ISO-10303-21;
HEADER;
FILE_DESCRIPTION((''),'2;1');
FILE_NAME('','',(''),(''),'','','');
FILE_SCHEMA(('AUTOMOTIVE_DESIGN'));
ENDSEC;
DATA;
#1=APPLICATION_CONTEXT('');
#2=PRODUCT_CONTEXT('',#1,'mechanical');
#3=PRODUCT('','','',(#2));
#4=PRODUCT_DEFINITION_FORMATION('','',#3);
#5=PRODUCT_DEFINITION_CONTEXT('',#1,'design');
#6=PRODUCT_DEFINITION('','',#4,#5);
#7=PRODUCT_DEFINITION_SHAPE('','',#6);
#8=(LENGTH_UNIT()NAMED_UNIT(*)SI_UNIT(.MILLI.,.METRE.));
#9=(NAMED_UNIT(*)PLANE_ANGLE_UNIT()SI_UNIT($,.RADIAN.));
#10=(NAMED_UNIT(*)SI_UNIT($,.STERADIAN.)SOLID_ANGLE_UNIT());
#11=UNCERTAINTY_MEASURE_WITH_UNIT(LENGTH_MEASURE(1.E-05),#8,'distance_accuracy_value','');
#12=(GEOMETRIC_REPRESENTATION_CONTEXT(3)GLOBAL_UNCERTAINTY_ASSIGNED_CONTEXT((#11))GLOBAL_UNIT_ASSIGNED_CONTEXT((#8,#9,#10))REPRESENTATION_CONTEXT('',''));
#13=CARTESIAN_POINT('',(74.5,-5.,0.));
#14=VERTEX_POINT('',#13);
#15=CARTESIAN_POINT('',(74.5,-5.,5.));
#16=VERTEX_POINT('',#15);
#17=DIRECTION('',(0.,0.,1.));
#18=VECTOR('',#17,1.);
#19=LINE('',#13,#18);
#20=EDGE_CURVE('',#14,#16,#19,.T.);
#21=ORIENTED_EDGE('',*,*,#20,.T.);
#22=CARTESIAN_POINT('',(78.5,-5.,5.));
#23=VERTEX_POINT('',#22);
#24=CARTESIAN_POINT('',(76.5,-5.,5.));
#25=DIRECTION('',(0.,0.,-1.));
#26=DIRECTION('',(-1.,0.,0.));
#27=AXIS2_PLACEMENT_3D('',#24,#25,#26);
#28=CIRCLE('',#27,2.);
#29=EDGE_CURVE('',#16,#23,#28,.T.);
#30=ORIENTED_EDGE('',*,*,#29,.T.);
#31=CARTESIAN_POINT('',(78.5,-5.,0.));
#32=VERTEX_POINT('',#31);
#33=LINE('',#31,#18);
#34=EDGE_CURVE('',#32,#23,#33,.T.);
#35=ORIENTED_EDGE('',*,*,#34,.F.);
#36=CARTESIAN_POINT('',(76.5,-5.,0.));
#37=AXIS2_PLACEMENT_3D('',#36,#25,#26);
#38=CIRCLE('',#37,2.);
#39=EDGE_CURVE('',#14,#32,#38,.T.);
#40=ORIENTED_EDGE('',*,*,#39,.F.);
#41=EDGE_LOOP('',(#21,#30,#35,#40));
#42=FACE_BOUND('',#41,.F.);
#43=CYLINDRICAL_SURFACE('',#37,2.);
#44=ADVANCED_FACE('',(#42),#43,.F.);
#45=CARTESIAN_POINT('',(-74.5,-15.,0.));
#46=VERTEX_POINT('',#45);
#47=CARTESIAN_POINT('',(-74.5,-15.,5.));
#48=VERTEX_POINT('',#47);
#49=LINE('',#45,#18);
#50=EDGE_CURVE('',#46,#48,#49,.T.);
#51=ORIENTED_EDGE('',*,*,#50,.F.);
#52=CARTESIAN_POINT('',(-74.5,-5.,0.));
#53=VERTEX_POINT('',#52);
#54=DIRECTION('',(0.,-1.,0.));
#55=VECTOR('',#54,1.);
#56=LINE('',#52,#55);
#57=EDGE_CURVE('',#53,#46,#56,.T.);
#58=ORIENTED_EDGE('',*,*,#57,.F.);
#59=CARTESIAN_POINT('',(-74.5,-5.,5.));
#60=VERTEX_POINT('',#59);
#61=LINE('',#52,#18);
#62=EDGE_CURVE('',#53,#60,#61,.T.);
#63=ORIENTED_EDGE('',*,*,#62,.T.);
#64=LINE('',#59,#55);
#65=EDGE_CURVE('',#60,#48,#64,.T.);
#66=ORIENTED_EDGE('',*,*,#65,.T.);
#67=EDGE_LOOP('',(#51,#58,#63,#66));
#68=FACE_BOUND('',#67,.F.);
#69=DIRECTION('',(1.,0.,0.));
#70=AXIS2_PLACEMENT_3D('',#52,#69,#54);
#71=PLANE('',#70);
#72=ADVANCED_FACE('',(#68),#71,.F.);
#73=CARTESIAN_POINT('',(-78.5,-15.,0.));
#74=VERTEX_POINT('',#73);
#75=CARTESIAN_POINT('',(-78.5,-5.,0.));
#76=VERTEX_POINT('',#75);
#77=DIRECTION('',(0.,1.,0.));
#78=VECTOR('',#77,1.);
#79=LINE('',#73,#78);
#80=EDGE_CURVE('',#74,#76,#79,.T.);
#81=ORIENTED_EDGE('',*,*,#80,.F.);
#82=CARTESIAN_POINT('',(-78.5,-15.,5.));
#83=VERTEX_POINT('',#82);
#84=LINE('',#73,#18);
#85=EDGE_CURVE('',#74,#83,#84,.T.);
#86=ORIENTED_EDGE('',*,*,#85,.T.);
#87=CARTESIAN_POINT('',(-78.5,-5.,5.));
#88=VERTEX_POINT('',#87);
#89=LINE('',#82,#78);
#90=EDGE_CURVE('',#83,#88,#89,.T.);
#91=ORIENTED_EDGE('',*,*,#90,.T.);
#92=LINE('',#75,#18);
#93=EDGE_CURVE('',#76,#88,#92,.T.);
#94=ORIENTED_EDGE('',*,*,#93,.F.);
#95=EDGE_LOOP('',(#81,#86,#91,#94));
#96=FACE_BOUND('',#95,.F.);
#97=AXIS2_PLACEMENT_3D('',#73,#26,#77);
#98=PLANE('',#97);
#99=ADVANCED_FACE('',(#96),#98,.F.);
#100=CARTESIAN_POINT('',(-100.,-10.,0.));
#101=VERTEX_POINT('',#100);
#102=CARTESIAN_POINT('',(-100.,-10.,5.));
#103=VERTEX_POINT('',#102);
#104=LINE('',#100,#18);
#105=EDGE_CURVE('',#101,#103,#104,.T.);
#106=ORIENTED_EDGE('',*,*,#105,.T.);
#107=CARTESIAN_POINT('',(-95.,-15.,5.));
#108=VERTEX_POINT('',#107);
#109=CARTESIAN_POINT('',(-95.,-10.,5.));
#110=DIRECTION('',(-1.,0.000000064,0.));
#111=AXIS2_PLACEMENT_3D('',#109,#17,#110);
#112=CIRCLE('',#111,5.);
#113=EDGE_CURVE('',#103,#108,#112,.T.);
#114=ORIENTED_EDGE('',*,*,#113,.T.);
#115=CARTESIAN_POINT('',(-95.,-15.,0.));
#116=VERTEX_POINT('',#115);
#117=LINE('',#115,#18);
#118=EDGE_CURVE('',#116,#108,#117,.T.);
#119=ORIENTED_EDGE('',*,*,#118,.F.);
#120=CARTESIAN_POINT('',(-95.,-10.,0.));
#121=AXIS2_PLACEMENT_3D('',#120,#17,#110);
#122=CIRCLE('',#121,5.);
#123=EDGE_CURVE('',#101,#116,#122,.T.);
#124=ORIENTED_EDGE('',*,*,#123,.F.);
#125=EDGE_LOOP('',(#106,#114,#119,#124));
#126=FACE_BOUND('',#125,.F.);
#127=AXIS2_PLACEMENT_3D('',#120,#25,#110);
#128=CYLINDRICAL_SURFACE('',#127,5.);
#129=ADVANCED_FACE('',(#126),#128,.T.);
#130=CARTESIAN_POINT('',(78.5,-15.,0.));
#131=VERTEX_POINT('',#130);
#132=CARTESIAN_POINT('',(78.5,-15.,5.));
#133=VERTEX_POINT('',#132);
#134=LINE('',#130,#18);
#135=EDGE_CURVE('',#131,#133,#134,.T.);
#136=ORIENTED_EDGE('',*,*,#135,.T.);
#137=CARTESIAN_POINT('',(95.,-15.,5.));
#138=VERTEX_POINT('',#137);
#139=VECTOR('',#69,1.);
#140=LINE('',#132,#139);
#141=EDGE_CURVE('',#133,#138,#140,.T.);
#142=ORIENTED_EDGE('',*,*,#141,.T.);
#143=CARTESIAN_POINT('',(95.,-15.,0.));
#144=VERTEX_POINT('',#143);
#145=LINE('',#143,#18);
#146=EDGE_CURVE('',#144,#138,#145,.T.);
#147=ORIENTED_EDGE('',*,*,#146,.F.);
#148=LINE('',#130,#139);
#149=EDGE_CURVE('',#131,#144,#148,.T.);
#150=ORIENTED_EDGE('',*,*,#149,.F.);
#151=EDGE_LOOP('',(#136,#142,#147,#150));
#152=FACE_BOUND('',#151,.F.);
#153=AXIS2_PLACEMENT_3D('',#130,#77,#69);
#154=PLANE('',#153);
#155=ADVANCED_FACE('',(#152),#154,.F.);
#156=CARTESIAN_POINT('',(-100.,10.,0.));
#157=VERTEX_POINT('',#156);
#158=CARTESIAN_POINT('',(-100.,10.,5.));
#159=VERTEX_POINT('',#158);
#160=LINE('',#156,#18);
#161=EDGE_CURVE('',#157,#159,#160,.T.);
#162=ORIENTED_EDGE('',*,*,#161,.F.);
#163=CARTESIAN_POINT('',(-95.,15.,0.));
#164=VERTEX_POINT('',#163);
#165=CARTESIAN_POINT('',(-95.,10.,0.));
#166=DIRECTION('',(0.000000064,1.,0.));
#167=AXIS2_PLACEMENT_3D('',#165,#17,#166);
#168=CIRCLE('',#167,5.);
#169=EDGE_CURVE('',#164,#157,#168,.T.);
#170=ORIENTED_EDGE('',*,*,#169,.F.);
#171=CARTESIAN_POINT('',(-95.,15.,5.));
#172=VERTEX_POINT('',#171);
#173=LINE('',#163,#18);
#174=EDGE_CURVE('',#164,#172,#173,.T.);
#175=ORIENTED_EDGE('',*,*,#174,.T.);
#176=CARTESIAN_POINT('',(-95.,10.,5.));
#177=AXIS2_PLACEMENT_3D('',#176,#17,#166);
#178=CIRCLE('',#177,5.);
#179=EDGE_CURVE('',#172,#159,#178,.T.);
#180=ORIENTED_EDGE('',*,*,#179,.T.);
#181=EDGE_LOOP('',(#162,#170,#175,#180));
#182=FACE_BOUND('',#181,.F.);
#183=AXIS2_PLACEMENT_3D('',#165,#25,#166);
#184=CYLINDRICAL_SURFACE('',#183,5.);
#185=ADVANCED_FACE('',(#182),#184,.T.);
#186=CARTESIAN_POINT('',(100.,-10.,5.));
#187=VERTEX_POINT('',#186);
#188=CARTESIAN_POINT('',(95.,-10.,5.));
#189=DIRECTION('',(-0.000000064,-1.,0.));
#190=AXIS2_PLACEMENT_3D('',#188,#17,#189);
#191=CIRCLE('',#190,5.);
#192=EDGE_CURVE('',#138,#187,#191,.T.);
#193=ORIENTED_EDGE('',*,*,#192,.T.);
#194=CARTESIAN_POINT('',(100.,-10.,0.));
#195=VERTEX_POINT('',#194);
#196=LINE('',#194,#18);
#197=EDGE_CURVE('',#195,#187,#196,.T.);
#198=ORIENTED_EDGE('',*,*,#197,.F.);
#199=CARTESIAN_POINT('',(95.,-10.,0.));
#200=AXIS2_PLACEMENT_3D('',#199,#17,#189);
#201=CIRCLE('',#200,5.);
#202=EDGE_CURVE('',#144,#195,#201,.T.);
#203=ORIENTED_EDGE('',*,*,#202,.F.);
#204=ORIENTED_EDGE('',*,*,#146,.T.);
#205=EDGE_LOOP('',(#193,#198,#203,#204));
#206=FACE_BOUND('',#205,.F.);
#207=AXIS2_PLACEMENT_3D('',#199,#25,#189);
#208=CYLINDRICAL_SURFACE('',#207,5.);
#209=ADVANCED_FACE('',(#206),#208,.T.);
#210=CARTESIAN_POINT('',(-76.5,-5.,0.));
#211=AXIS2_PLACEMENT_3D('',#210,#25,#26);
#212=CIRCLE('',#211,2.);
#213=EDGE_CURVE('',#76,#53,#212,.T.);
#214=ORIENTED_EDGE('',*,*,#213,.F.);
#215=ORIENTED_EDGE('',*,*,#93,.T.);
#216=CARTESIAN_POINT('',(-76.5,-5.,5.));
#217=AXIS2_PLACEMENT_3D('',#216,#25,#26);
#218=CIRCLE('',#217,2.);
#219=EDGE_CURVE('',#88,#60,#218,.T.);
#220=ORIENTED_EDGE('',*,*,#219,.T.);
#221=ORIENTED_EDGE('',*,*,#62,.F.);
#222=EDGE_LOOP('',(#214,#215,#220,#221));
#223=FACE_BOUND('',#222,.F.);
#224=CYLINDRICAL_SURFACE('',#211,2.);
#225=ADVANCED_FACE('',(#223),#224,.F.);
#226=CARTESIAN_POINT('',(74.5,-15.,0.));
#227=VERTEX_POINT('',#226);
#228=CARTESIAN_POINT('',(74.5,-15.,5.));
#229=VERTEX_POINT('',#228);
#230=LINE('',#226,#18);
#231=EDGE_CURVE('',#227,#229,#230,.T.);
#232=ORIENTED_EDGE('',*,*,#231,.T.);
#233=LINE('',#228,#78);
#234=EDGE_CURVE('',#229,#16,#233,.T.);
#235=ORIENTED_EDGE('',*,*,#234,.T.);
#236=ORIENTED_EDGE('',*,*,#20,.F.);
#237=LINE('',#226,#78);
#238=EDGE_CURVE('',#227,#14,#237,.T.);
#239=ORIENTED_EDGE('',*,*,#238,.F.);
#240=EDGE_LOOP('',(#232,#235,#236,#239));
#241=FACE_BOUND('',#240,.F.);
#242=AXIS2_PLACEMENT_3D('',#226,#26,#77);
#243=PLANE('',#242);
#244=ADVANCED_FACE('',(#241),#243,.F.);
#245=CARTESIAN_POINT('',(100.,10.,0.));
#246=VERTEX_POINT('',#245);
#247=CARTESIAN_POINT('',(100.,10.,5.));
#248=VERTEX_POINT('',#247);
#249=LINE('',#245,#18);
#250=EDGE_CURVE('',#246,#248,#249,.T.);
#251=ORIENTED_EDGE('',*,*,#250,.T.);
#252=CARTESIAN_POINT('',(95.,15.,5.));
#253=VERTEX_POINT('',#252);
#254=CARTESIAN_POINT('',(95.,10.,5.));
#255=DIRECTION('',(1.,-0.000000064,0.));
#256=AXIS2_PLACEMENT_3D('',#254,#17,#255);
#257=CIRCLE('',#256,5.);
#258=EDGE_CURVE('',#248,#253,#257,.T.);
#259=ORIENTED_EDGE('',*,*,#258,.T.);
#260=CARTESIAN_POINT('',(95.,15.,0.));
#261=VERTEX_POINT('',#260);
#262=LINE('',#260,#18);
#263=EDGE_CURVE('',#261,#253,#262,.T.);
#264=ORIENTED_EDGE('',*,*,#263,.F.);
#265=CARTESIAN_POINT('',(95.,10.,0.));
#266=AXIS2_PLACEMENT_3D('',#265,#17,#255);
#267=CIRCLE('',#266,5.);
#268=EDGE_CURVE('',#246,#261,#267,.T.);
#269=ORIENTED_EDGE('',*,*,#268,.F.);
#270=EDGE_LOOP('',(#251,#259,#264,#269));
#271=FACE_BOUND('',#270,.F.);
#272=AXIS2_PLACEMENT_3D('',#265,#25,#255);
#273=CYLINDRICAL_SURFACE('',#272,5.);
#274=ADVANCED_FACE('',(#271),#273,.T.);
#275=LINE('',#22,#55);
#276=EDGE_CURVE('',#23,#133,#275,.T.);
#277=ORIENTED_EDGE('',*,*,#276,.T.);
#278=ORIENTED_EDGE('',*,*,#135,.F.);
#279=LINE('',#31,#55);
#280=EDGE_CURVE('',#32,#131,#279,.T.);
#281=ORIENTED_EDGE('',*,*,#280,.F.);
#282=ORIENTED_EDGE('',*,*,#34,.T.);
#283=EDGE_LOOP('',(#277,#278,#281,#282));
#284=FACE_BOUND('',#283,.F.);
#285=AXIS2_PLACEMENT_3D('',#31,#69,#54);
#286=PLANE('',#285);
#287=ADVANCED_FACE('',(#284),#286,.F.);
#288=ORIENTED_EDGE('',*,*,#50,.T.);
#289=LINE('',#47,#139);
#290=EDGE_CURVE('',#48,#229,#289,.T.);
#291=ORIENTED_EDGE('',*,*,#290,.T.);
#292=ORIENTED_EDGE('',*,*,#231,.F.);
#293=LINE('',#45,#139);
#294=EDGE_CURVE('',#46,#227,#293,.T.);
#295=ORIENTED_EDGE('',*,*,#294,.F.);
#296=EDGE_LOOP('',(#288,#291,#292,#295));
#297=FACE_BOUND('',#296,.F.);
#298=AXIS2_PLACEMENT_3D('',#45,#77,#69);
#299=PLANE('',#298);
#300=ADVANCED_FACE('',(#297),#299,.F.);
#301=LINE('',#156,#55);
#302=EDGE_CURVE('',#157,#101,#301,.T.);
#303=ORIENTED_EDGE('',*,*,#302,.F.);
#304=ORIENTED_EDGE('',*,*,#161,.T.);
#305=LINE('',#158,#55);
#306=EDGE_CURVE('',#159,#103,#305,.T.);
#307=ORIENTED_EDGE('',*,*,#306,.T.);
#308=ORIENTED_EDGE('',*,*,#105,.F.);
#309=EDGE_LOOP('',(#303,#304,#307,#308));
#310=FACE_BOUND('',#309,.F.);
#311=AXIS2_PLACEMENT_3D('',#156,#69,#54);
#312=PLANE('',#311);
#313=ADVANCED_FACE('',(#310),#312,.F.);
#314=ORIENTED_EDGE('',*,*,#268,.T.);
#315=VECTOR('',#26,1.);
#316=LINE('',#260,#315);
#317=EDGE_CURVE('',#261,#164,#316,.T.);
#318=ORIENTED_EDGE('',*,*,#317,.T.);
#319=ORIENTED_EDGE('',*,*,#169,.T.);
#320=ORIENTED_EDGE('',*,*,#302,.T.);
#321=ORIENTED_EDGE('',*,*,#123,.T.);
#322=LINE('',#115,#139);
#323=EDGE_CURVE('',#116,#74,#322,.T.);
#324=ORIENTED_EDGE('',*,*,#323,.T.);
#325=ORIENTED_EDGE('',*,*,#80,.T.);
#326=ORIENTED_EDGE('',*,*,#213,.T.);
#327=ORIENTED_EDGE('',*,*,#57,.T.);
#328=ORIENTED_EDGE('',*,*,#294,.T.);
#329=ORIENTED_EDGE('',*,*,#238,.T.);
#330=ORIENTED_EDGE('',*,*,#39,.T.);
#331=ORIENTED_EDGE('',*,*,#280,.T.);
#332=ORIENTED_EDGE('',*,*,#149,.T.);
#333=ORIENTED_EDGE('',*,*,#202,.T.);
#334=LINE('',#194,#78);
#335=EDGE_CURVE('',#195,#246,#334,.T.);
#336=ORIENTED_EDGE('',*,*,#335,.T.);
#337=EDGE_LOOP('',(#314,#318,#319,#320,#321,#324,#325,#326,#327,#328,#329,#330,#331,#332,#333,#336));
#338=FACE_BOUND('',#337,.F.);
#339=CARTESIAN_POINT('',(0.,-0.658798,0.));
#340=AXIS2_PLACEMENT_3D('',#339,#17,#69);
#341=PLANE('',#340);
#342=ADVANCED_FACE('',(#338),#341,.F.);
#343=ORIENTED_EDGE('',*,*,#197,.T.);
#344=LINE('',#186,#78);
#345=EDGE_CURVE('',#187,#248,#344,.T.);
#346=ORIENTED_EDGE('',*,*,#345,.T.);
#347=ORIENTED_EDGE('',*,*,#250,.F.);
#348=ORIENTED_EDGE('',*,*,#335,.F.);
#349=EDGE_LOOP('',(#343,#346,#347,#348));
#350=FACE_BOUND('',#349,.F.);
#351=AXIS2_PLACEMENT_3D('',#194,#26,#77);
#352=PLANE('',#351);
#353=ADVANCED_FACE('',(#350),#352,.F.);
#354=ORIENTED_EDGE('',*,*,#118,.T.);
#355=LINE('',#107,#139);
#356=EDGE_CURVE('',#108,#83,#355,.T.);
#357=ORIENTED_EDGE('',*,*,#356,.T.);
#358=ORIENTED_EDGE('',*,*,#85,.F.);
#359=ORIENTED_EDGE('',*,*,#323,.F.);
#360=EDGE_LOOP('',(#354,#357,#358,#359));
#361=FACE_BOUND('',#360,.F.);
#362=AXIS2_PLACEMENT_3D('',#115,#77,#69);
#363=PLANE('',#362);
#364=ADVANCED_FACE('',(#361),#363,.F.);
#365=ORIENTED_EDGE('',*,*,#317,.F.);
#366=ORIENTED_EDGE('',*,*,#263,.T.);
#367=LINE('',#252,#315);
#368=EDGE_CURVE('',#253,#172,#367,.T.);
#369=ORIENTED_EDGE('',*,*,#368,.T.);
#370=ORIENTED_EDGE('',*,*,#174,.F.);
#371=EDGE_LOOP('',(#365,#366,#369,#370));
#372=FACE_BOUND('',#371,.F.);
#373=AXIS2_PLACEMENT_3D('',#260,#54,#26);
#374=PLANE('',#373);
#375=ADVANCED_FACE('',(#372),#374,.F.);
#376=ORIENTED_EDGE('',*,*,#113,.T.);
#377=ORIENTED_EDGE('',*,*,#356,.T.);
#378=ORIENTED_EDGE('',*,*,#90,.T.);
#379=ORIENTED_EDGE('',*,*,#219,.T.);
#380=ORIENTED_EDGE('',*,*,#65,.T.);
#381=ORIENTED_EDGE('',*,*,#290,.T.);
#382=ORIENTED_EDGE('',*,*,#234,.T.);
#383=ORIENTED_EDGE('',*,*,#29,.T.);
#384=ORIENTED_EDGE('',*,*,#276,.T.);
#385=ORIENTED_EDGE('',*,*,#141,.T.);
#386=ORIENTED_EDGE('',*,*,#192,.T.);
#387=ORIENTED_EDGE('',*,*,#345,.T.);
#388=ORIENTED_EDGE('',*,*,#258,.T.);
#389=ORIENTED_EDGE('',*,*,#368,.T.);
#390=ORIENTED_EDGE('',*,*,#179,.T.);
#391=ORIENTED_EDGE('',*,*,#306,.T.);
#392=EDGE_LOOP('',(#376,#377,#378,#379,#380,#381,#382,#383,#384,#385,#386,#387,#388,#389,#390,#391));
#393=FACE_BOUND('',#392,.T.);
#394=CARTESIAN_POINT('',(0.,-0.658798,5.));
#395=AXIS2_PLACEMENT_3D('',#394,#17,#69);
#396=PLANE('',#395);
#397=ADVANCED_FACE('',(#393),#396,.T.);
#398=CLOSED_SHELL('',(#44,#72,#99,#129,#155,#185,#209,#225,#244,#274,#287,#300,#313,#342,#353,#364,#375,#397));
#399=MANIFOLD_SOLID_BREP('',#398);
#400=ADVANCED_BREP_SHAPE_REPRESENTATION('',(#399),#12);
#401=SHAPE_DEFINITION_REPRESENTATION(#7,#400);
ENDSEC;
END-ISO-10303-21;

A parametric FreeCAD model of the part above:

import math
import FreeCAD as App
import Part
import Sketcher
from FreeCAD import Vector

doc = App.newDocument("Part")
body = doc.addObject("PartDesign::Body", "Body")

sketch1 = doc.addObject("Sketcher::SketchObject", "Sketch")
body.addObject(sketch1)
sketch1.AttachmentSupport = (doc.XY_Plane, [""])
sketch1.MapMode = "FlatFace"
sketch1.addGeometry(Part.LineSegment(Vector(95, 15, 0), Vector(-95, 15, 0)), False)
sketch1.addGeometry(Part.ArcOfCircle(Part.Circle(Vector(-95, 10, 0), Vector(0, 0, 1), 5), math.radians(90), math.radians(180)), False)
sketch1.addGeometry(Part.LineSegment(Vector(-100, 10, 0), Vector(-100, -10, 0)), False)
sketch1.addGeometry(Part.ArcOfCircle(Part.Circle(Vector(-95, -10, 0), Vector(0, 0, 1), 5), math.radians(180), math.radians(270)), False)
sketch1.addGeometry(Part.LineSegment(Vector(-95, -15, 0), Vector(-78.5, -15, 0)), False)
sketch1.addGeometry(Part.LineSegment(Vector(-78.5, -15, 0), Vector(-78.5, -5, 0)), False)
sketch1.addGeometry(Part.ArcOfCircle(Part.Circle(Vector(-76.5, -5, 0), Vector(0, 0, 1), 2), math.radians(0), math.radians(180)), False)
sketch1.addGeometry(Part.LineSegment(Vector(-74.5, -5, 0), Vector(-74.5, -15, 0)), False)
sketch1.addGeometry(Part.LineSegment(Vector(-74.5, -15, 0), Vector(74.5, -15, 0)), False)
sketch1.addGeometry(Part.LineSegment(Vector(74.5, -15, 0), Vector(74.5, -5, 0)), False)
sketch1.addGeometry(Part.ArcOfCircle(Part.Circle(Vector(76.5, -5, 0), Vector(0, 0, 1), 2), math.radians(0), math.radians(180)), False)
sketch1.addGeometry(Part.LineSegment(Vector(78.5, -5, 0), Vector(78.5, -15, 0)), False)
sketch1.addGeometry(Part.LineSegment(Vector(78.5, -15, 0), Vector(95, -15, 0)), False)
sketch1.addGeometry(Part.ArcOfCircle(Part.Circle(Vector(95, -10, 0), Vector(0, 0, 1), 5), math.radians(-90), math.radians(0)), False)
sketch1.addGeometry(Part.LineSegment(Vector(100, -10, 0), Vector(100, 10, 0)), False)
sketch1.addGeometry(Part.ArcOfCircle(Part.Circle(Vector(95, 10, 0), Vector(0, 0, 1), 5), math.radians(0), math.radians(90)), False)
sketch1.addConstraint(Sketcher.Constraint("Tangent", 0, 2, 1, 1))
sketch1.addConstraint(Sketcher.Constraint("Tangent", 1, 2, 2, 1))
sketch1.addConstraint(Sketcher.Constraint("Tangent", 2, 2, 3, 1))
sketch1.addConstraint(Sketcher.Constraint("Tangent", 3, 2, 4, 1))
sketch1.addConstraint(Sketcher.Constraint("Coincident", 4, 2, 5, 1))
sketch1.addConstraint(Sketcher.Constraint("Tangent", 5, 2, 6, 2))
sketch1.addConstraint(Sketcher.Constraint("Tangent", 6, 1, 7, 1))
sketch1.addConstraint(Sketcher.Constraint("Coincident", 7, 2, 8, 1))
sketch1.addConstraint(Sketcher.Constraint("Coincident", 8, 2, 9, 1))
sketch1.addConstraint(Sketcher.Constraint("Tangent", 9, 2, 10, 2))
sketch1.addConstraint(Sketcher.Constraint("Tangent", 10, 1, 11, 1))
sketch1.addConstraint(Sketcher.Constraint("Coincident", 11, 2, 12, 1))
sketch1.addConstraint(Sketcher.Constraint("Tangent", 12, 2, 13, 1))
sketch1.addConstraint(Sketcher.Constraint("Tangent", 13, 2, 14, 1))
sketch1.addConstraint(Sketcher.Constraint("Tangent", 14, 2, 15, 1))
sketch1.addConstraint(Sketcher.Constraint("Tangent", 15, 2, 0, 1))
sketch1.addConstraint(Sketcher.Constraint("Horizontal", 0))
sketch1.addConstraint(Sketcher.Constraint("Vertical", 2))
sketch1.addConstraint(Sketcher.Constraint("Horizontal", 4))
sketch1.addConstraint(Sketcher.Constraint("Vertical", 5))
sketch1.addConstraint(Sketcher.Constraint("Vertical", 7))
sketch1.addConstraint(Sketcher.Constraint("Horizontal", 8))
sketch1.addConstraint(Sketcher.Constraint("Vertical", 9))
sketch1.addConstraint(Sketcher.Constraint("Vertical", 11))
sketch1.addConstraint(Sketcher.Constraint("Horizontal", 12))
sketch1.addConstraint(Sketcher.Constraint("Vertical", 14))
sketch1.addConstraint(Sketcher.Constraint("Equal", 1, 3))
sketch1.addConstraint(Sketcher.Constraint("Equal", 6, 10))
sketch1.addConstraint(Sketcher.Constraint("Equal", 3, 13))
sketch1.addConstraint(Sketcher.Constraint("Equal", 13, 15))
sketch1.addConstraint(Sketcher.Constraint("Symmetric", 1, 3, 13, 3, -1, 1))
sketch1.addConstraint(Sketcher.Constraint("Symmetric", 6, 3, 10, 3, -2))
sketch1.addConstraint(Sketcher.Constraint("Horizontal", 3, 3, 13, 3))
sketch1.addConstraint(Sketcher.Constraint("Horizontal", 4, 2, 7, 2))
sketch1.addConstraint(Sketcher.Constraint("Radius", 1, 5.0))
sketch1.addConstraint(Sketcher.Constraint("Radius", 6, 2.0))
sketch1.addConstraint(Sketcher.Constraint("DistanceX", 0, 2, 0, 1, 190.0))
sketch1.addConstraint(Sketcher.Constraint("DistanceX", 8, 1, 8, 2, 149.0))
sketch1.addConstraint(Sketcher.Constraint("DistanceY", 2, 2, 2, 1, 20.0))
sketch1.addConstraint(Sketcher.Constraint("DistanceY", 5, 1, 5, 2, 10.0))
pad1 = doc.addObject("PartDesign::Pad", "Pad")
body.addObject(pad1)
pad1.Profile = sketch1
pad1.Length = 5

doc.recompute()
